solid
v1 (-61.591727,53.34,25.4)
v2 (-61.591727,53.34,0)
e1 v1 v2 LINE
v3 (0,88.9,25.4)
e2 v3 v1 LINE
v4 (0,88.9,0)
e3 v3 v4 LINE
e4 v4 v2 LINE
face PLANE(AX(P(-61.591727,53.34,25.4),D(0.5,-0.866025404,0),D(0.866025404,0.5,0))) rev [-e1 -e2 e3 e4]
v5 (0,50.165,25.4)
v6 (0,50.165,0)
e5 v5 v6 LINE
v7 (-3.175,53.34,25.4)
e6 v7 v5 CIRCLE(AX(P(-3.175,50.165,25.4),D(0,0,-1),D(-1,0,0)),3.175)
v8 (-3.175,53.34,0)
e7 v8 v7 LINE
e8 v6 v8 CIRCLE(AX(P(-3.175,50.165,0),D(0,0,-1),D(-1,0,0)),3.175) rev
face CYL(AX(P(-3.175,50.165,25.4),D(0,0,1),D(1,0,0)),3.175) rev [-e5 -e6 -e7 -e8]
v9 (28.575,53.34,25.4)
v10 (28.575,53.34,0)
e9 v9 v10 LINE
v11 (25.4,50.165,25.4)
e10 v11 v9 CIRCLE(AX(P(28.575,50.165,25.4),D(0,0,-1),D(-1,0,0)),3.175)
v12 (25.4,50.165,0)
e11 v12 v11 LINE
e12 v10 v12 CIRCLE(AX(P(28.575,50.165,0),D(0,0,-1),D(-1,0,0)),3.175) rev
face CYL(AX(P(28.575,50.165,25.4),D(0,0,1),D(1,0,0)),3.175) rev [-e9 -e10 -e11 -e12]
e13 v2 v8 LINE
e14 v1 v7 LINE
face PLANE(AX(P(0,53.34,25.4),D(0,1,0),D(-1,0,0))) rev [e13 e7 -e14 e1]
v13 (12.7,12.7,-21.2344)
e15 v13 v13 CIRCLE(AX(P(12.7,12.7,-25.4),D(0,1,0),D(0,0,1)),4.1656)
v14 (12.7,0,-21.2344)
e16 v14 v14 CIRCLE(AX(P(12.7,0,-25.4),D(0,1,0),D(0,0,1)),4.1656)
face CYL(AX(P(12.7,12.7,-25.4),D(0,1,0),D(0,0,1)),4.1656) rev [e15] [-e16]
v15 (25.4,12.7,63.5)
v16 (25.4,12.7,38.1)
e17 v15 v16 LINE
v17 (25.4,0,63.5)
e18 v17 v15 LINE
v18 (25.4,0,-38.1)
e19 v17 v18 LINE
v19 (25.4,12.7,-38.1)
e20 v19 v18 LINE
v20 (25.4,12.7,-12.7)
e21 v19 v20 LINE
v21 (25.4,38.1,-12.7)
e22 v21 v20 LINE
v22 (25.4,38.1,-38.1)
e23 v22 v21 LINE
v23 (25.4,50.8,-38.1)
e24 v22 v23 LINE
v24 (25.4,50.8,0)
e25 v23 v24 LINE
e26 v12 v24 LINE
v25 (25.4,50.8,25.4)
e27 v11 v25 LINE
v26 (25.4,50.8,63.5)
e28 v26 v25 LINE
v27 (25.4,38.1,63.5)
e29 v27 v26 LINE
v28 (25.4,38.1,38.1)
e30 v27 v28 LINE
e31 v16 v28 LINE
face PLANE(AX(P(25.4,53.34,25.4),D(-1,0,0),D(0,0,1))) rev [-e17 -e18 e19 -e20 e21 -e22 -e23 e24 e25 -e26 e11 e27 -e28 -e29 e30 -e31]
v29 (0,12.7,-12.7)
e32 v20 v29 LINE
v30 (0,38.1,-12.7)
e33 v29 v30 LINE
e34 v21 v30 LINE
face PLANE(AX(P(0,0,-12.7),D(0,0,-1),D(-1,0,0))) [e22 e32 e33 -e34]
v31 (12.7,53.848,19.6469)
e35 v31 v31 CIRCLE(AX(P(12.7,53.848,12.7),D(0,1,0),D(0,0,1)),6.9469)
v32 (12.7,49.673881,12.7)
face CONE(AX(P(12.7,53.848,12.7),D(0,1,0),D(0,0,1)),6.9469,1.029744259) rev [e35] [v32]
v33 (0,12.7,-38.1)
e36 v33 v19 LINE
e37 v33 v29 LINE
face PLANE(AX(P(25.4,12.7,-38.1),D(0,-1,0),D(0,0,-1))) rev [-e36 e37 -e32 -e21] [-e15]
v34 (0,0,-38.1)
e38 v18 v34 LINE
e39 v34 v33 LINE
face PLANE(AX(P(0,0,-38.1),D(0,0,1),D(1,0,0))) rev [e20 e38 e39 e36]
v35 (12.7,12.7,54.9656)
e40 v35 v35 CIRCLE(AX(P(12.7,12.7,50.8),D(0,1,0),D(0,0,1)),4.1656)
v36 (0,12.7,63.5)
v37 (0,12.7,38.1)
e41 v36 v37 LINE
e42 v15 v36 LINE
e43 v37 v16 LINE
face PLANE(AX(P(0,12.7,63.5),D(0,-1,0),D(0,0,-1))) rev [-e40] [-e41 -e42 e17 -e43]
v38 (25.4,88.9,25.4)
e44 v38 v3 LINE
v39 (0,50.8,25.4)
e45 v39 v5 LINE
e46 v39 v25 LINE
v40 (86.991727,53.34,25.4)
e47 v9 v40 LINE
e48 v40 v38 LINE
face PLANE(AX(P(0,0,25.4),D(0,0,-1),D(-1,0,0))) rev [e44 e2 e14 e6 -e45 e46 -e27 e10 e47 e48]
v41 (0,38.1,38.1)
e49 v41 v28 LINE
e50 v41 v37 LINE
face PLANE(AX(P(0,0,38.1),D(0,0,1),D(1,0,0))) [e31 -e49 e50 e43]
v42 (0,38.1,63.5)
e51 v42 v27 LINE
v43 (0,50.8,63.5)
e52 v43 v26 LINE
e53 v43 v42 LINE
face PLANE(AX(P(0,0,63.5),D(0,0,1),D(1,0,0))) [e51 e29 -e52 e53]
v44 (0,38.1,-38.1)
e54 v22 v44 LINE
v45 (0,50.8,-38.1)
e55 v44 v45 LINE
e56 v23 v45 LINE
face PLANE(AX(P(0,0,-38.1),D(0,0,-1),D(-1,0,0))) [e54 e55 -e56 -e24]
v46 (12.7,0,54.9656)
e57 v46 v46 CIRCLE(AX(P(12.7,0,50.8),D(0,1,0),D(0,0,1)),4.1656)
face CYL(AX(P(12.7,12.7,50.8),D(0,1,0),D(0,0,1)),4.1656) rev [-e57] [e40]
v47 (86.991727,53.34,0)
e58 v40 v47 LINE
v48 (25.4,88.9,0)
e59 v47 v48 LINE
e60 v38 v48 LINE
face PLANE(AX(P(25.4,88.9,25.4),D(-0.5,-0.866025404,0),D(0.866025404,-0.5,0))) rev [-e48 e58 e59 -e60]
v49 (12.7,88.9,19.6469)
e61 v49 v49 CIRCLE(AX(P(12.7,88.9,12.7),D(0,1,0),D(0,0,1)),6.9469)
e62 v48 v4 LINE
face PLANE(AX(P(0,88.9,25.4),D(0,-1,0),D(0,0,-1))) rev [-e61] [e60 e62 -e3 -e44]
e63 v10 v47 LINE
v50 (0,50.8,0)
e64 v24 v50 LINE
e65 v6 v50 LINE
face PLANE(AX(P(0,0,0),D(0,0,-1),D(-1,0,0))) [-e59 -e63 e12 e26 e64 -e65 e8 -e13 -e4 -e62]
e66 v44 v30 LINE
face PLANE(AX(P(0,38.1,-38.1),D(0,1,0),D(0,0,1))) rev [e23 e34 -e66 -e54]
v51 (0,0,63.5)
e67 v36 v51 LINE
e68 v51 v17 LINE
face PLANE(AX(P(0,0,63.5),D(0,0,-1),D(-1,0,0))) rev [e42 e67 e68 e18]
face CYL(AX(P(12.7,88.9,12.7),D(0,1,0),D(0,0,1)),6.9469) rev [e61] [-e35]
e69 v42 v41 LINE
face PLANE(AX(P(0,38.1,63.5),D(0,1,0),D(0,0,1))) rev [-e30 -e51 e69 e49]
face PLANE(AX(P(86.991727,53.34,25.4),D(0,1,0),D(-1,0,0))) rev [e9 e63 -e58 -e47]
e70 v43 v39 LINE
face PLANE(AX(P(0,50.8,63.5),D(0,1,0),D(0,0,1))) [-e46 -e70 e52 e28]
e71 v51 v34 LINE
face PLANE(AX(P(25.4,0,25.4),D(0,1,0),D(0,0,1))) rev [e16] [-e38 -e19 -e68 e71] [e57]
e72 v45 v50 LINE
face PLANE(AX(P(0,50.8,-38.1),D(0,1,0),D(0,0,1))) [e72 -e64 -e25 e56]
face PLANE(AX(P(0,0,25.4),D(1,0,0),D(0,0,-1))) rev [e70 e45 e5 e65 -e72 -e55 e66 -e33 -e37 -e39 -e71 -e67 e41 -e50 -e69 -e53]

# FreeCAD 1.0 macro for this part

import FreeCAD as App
import Part
import Sketcher
Q = App.Units.Quantity


def edges_at(feature, points):
    """Names of the edges that pass closest to the given points."""
    edges = feature.Shape.Edges
    near = lambda p: min(range(len(edges)), key=lambda i: edges[i].distToShape(Part.Vertex(*p))[0])
    return sorted({f"Edge{near(p) + 1}" for p in points})


def add_polygon(sketch, points):
    """Adds a closed chain of lines whose ends are joined by coincident constraints."""
    first, n = sketch.GeometryCount, len(points)
    for a, b in zip(points, points[1:] + points[:1]):
        sketch.addGeometry(Part.LineSegment(App.Vector(*a, 0), App.Vector(*b, 0)), False)
    for i in range(n):
        sketch.addConstraint(Sketcher.Constraint("Coincident", first + i, 2, first + (i + 1) % n, 1))

doc = App.newDocument("Part")
body = doc.addObject("PartDesign::Body", "Body")

# Sketch on XY plane
sketch1 = doc.addObject("Sketcher::SketchObject", "Sketch")
body.addObject(sketch1)
sketch1.AttachmentSupport = (doc.XY_Plane, [""])
sketch1.MapMode = "FlatFace"
add_polygon(sketch1, [(0, 53), (0, 0), (25, 0), (25, 53), (87, 53), (25, 89), (0, 89), (-62, 53)])  # lines 0-7
sketch1.addConstraint([
    Sketcher.Constraint("Vertical", 0),
    Sketcher.Constraint("Horizontal", 1),
    Sketcher.Constraint("Vertical", 2),
    Sketcher.Constraint("Horizontal", 3),
    Sketcher.Constraint("Horizontal", 5),
    Sketcher.Constraint("Horizontal", 7),
    Sketcher.Constraint("Coincident", 0, 2, -1, 1),
    Sketcher.Constraint("PointOnObject", 5, 2, -2),
    Sketcher.Constraint("Horizontal", 3, 2, 6, 2),
    Sketcher.Constraint("Vertical", 2, 2, 4, 2),
    Sketcher.Constraint("Equal", 3, 7),
    Sketcher.Constraint("DistanceX", 1, 1, 1, 2, Q("1 in")),
    Sketcher.Constraint("DistanceY", 0, 2, 0, 1, Q("2.1 in")),
    Sketcher.Constraint("Angle", 4, Q("150 deg")),
    Sketcher.Constraint("Distance", 4, Q("2.8 in")),
])
pad1 = doc.addObject("PartDesign::Pad", "Pad")
body.addObject(pad1)
pad1.Profile = sketch1
pad1.Length = Q("1 in")

# Sketch on XY plane
sketch2 = doc.addObject("Sketcher::SketchObject", "Sketch001")
body.addObject(sketch2)
sketch2.AttachmentSupport = (doc.XY_Plane, [""])
sketch2.MapMode = "FlatFace"
sketch2.AttachmentOffset = App.Placement(App.Vector(0, 0, 1 * 25.4), App.Rotation())
add_polygon(sketch2, [(0, 13), (0, 0), (25, 0), (25, 13)])  # lines 0-3
sketch2.addConstraint([
    Sketcher.Constraint("Vertical", 0),
    Sketcher.Constraint("Horizontal", 1),
    Sketcher.Constraint("Vertical", 2),
    Sketcher.Constraint("Horizontal", 3),
    Sketcher.Constraint("Coincident", 0, 2, -1, 1),
    Sketcher.Constraint("DistanceX", 1, 1, 1, 2, Q("1 in")),
    Sketcher.Constraint("DistanceY", 0, 2, 0, 1, Q("0.5 in")),
])
pad2 = doc.addObject("PartDesign::Pad", "Pad001")
body.addObject(pad2)
pad2.Profile = sketch2
pad2.Length = Q("1.5 in")

# Sketch on XY plane
sketch3 = doc.addObject("Sketcher::SketchObject", "Sketch002")
body.addObject(sketch3)
sketch3.AttachmentSupport = (doc.XY_Plane, [""])
sketch3.MapMode = "FlatFace"
add_polygon(sketch3, [(25, 13), (25, 0), (0, 0), (0, 13)])  # lines 0-3
sketch3.addConstraint([
    Sketcher.Constraint("Vertical", 0),
    Sketcher.Constraint("Horizontal", 1),
    Sketcher.Constraint("Vertical", 2),
    Sketcher.Constraint("Horizontal", 3),
    Sketcher.Constraint("Coincident", 1, 2, -1, 1),
    Sketcher.Constraint("DistanceX", 1, 2, 1, 1, Q("1 in")),
    Sketcher.Constraint("DistanceY", 0, 2, 0, 1, Q("0.5 in")),
])
pad3 = doc.addObject("PartDesign::Pad", "Pad002")
body.addObject(pad3)
pad3.Profile = sketch3
pad3.Length = Q("1.5 in")
pad3.Reversed = True

# Sketch on XZ plane
sketch4 = doc.addObject("Sketcher::SketchObject", "Sketch003")
body.addObject(sketch4)
sketch4.AttachmentSupport = (doc.XZ_Plane, [""])
sketch4.MapMode = "FlatFace"
sketch4.AttachmentOffset = App.Placement(App.Vector(0, 0, -0.5 * 25.4), App.Rotation())
sketch4.addGeometry([
    Part.Circle(App.Vector(12.7, -25.4, 0), App.Vector(0, 0, 1), 4.2),
    Part.Circle(App.Vector(12.7, 50.8, 0), App.Vector(0, 0, 1), 4.2),
], False)
sketch4.addConstraint([
    Sketcher.Constraint("Equal", 0, 1),
    Sketcher.Constraint("Vertical", 0, 3, 1, 3),
    Sketcher.Constraint("Diameter", 0, Q("0.328 in")),
    Sketcher.Constraint("DistanceY", 0, 3, -1, 1, Q("1 in")),
    Sketcher.Constraint("DistanceY", -1, 1, 1, 3, Q("2 in")),
    Sketcher.Constraint("DistanceX", -1, 1, 0, 3, Q("0.5 in")),
])
doc.recompute()
hole = doc.addObject("PartDesign::Hole", "Hole")
body.addObject(hole)
hole.Profile = sketch4
hole.ThreadType = "None"
hole.Diameter = Q("0.328 in")
hole.DepthType = "ThroughAll"
hole.Reversed = True

# Sketch on XZ plane
sketch5 = doc.addObject("Sketcher::SketchObject", "Sketch004")
body.addObject(sketch5)
sketch5.AttachmentSupport = (doc.XZ_Plane, [""])
sketch5.MapMode = "FlatFace"
sketch5.AttachmentOffset = App.Placement(App.Vector(0, 0, -3.5 * 25.4), App.Rotation())
sketch5.addGeometry(Part.Circle(App.Vector(13, 13, 0), App.Vector(0, 0, 1), 7), False)
sketch5.addConstraint([
    Sketcher.Constraint("Diameter", 0, Q("0.547 in")),
    Sketcher.Constraint("DistanceX", -1, 1, 0, 3, Q("0.5 in")),
    Sketcher.Constraint("DistanceY", -1, 1, 0, 3, Q("0.5 in")),
])
doc.recompute()
hole2 = doc.addObject("PartDesign::Hole", "Hole001")
body.addObject(hole2)
hole2.Profile = sketch5
hole2.ThreadType = "None"
hole2.Diameter = Q("0.547 in")
hole2.DepthType = "Dimension"
hole2.Depth = Q("1.38 in")
hole2.DrillPoint = "Angled"
hole2.DrillPointAngle = 118
hole2.Reversed = True
doc.recompute()

fillet = doc.addObject("PartDesign::Fillet", "Fillet")
body.addObject(fillet)
fillet.Base = (hole2, edges_at(hole2, [(0, 53.34, 12.7), (25.4, 53.34, 12.7)]))
fillet.Radius = Q("0.125 in")

# Sketch on XY plane
sketch6 = doc.addObject("Sketcher::SketchObject", "Sketch005")
body.addObject(sketch6)
sketch6.AttachmentSupport = (doc.XY_Plane, [""])
sketch6.MapMode = "FlatFace"
sketch6.AttachmentOffset = App.Placement(App.Vector(0, 0, 1 * 25.4), App.Rotation())
add_polygon(sketch6, [(0, 38), (0, 13), (25, 13), (25, 38)])  # lines 0-3
sketch6.addConstraint([
    Sketcher.Constraint("Vertical", 0),
    Sketcher.Constraint("Horizontal", 1),
    Sketcher.Constraint("Vertical", 2),
    Sketcher.Constraint("Horizontal", 3),
    Sketcher.Constraint("PointOnObject", 0, 2, -2),
    Sketcher.Constraint("Equal", 3, 0),
    Sketcher.Constraint("DistanceX", 1, 1, 1, 2, Q("1 in")),
    Sketcher.Constraint("DistanceY", -1, 1, 0, 2, Q("0.5 in")),
])
pad4 = doc.addObject("PartDesign::Pad", "Pad003")
body.addObject(pad4)
pad4.Profile = sketch6
pad4.Length = Q("0.5 in")

# Sketch on XY plane
sketch7 = doc.addObject("Sketcher::SketchObject", "Sketch006")
body.addObject(sketch7)
sketch7.AttachmentSupport = (doc.XY_Plane, [""])
sketch7.MapMode = "FlatFace"
sketch7.AttachmentOffset = App.Placement(App.Vector(0, 0, 1 * 25.4), App.Rotation())
add_polygon(sketch7, [(0, 38), (25, 38), (25, 51), (0, 51)])  # lines 0-3
sketch7.addConstraint([
    Sketcher.Constraint("Horizontal", 0),
    Sketcher.Constraint("Vertical", 1),
    Sketcher.Constraint("Horizontal", 2),
    Sketcher.Constraint("Vertical", 3),
    Sketcher.Constraint("PointOnObject", 2, 2, -2),
    Sketcher.Constraint("DistanceX", 0, 1, 0, 2, Q("1 in")),
    Sketcher.Constraint("DistanceY", 1, 1, 1, 2, Q("0.5 in")),
    Sketcher.Constraint("DistanceY", -1, 1, 1, 2, Q("2 in")),
])
pad5 = doc.addObject("PartDesign::Pad", "Pad004")
body.addObject(pad5)
pad5.Profile = sketch7
pad5.Length = Q("1.5 in")

# Sketch on XY plane
sketch8 = doc.addObject("Sketcher::SketchObject", "Sketch007")
body.addObject(sketch8)
sketch8.AttachmentSupport = (doc.XY_Plane, [""])
sketch8.MapMode = "FlatFace"
add_polygon(sketch8, [(25, 38), (25, 13), (0, 13), (0, 38)])  # lines 0-3
sketch8.addConstraint([
    Sketcher.Constraint("Vertical", 0),
    Sketcher.Constraint("Horizontal", 1),
    Sketcher.Constraint("Vertical", 2),
    Sketcher.Constraint("Horizontal", 3),
    Sketcher.Constraint("PointOnObject", 1, 2, -2),
    Sketcher.Constraint("Equal", 3, 0),
    Sketcher.Constraint("DistanceX", 1, 2, 1, 1, Q("1 in")),
    Sketcher.Constraint("DistanceY", -1, 1, 0, 2, Q("0.5 in")),
])
pad6 = doc.addObject("PartDesign::Pad", "Pad005")
body.addObject(pad6)
pad6.Profile = sketch8
pad6.Length = Q("0.5 in")
pad6.Reversed = True

# Sketch on XY plane
sketch9 = doc.addObject("Sketcher::SketchObject", "Sketch008")
body.addObject(sketch9)
sketch9.AttachmentSupport = (doc.XY_Plane, [""])
sketch9.MapMode = "FlatFace"
add_polygon(sketch9, [(25, 38), (0, 38), (0, 51), (25, 51)])  # lines 0-3
sketch9.addConstraint([
    Sketcher.Constraint("Horizontal", 0),
    Sketcher.Constraint("Vertical", 1),
    Sketcher.Constraint("Horizontal", 2),
    Sketcher.Constraint("Vertical", 3),
    Sketcher.Constraint("PointOnObject", 0, 2, -2),
    Sketcher.Constraint("DistanceX", 0, 2, 0, 1, Q("1 in")),
    Sketcher.Constraint("DistanceY", 1, 1, 1, 2, Q("0.5 in")),
    Sketcher.Constraint("DistanceY", -1, 1, 1, 2, Q("2 in")),
])
pad7 = doc.addObject("PartDesign::Pad", "Pad006")
body.addObject(pad7)
pad7.Profile = sketch9
pad7.Length = Q("1.5 in")
pad7.Reversed = True

doc.recompute()
